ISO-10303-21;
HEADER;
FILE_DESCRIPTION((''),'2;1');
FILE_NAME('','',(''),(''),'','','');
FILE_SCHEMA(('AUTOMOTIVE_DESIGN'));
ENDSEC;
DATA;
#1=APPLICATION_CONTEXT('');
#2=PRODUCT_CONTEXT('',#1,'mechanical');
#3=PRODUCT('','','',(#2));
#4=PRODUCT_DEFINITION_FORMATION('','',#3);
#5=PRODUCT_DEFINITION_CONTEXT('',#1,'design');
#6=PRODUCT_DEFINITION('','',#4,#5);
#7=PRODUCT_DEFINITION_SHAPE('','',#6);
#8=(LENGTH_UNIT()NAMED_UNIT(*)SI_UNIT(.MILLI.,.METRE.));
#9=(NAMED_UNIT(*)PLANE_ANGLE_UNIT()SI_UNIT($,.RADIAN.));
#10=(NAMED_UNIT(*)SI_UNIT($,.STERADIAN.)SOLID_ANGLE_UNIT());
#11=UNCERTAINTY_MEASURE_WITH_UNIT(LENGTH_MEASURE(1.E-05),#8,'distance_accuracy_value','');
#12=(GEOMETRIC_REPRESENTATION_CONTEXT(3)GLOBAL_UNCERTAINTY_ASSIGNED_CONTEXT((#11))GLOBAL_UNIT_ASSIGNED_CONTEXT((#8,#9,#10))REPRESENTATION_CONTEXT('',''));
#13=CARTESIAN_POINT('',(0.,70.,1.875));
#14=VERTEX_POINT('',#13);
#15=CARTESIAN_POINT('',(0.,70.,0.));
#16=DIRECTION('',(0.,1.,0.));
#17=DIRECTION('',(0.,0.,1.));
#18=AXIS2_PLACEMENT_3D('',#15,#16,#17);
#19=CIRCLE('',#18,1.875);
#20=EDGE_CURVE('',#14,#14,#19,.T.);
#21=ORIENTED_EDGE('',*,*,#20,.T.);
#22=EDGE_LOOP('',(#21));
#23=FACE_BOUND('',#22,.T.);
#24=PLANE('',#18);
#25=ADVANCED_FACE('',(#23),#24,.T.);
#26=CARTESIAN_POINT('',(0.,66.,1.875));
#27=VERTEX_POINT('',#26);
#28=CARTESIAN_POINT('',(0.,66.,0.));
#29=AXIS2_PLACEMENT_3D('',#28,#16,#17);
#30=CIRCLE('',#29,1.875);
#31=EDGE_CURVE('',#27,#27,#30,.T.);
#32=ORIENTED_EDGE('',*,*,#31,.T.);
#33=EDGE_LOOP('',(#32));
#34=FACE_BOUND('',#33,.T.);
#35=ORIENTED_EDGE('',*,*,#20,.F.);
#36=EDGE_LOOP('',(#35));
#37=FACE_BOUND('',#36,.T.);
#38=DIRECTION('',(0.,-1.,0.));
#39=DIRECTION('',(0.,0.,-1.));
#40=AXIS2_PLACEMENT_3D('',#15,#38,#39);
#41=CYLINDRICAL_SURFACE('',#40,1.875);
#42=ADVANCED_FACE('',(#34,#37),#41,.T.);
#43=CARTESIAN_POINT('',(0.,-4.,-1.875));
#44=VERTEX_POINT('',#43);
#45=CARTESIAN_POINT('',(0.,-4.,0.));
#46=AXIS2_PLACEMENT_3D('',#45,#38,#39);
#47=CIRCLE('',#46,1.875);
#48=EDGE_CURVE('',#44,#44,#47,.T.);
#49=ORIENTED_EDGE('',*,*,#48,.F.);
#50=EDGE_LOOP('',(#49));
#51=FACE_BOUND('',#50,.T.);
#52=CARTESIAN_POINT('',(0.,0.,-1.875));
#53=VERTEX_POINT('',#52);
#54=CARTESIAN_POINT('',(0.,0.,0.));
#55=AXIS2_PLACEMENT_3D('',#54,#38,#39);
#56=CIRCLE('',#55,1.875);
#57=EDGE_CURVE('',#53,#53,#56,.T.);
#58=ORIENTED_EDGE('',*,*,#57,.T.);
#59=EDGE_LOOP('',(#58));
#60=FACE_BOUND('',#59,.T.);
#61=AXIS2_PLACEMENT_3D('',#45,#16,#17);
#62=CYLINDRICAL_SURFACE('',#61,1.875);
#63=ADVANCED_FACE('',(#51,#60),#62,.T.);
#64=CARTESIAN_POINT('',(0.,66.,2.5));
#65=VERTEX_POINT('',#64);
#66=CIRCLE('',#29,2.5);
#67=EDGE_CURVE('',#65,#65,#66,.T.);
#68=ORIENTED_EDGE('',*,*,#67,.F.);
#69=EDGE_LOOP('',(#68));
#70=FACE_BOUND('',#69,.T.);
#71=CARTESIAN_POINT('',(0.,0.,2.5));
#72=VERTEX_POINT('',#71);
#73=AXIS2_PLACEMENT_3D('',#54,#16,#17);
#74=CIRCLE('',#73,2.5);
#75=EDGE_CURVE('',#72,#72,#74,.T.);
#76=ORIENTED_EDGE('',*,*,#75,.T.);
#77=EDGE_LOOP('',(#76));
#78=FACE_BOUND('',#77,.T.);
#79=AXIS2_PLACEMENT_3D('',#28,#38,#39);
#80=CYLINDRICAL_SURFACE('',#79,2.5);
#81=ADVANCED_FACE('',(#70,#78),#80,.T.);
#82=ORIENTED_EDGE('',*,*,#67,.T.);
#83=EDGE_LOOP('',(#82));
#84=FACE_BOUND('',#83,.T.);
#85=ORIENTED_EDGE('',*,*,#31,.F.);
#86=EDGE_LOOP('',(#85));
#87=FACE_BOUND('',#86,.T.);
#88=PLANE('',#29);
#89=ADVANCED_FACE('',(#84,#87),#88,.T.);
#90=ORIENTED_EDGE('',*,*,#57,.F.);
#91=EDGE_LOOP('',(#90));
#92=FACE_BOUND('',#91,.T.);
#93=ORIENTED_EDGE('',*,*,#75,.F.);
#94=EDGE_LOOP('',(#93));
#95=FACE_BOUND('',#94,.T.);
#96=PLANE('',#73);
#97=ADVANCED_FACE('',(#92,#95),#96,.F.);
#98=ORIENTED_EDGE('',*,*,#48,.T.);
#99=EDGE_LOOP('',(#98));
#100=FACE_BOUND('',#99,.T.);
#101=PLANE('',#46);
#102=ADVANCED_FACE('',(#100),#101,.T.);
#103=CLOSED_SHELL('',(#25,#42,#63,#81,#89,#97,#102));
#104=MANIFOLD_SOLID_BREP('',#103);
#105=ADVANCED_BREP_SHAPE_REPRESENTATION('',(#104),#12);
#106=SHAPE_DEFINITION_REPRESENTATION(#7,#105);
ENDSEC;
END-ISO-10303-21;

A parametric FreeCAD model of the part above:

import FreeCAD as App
import Part
import Sketcher
from FreeCAD import Vector
Q = App.Units.Quantity

doc = App.newDocument("Part")
params = doc.addObject("Spreadsheet::Sheet", "Params")
for row, (alias, value) in enumerate([
    ("sketch1_diameter", "5 mm"),
    ("pad1_length", "66 mm"),
    ("sketch2_diameter", "3.75 mm"),
    ("pad2_length", "4 mm"),
    ("sketch3_diameter", "3.75 mm"),
    ("pad3_length", "4 mm"),
], start=1):
    params.set(f"A{row}", alias)
    params.set(f"B{row}", "=" + value)
    params.setAlias(f"B{row}", alias)

body = doc.addObject("PartDesign::Body", "Body")

# Sketch on XZ plane
sketch1 = body.newObject("Sketcher::SketchObject", "Sketch")
sketch1.AttachmentSupport = (doc.getObject("XZ_Plane"), [""])
sketch1.MapMode = "FlatFace"
sketch1.addGeometry(Part.Circle(Vector(0, 0, 0), Vector(0, 0, 1), 2.5), False)
sketch1.addConstraint(Sketcher.Constraint("Coincident", 0, 3, -1, 1))
sketch1.addConstraint(Sketcher.Constraint("Diameter", 0, Q("5 mm")))
sketch1.setExpression("Constraints[1]", "Params.sketch1_diameter")
pad1 = body.newObject("PartDesign::Pad", "Pad")
pad1.Profile = sketch1
pad1.setExpression("Length", "Params.pad1_length")
pad1.Reversed = True

# Sketch on XZ plane
sketch2 = body.newObject("Sketcher::SketchObject", "Sketch001")
sketch2.AttachmentSupport = (doc.getObject("XZ_Plane"), [""])
sketch2.MapMode = "FlatFace"
sketch2.AttachmentOffset = App.Placement(Vector(0, 0, -66), App.Rotation())
sketch2.addGeometry(Part.Circle(Vector(0, 0, 0), Vector(0, 0, 1), 1.875), False)
sketch2.addConstraint(Sketcher.Constraint("Coincident", 0, 3, -1, 1))
sketch2.addConstraint(Sketcher.Constraint("Diameter", 0, Q("3.75 mm")))
sketch2.setExpression("Constraints[1]", "Params.sketch2_diameter")
pad2 = body.newObject("PartDesign::Pad", "Pad001")
pad2.Profile = sketch2
pad2.setExpression("Length", "Params.pad2_length")
pad2.Reversed = True

# Sketch on XZ plane
sketch3 = body.newObject("Sketcher::SketchObject", "Sketch002")
sketch3.AttachmentSupport = (doc.getObject("XZ_Plane"), [""])
sketch3.MapMode = "FlatFace"
sketch3.addGeometry(Part.Circle(Vector(0, 0, 0), Vector(0, 0, 1), 1.875), False)
sketch3.addConstraint(Sketcher.Constraint("Coincident", 0, 3, -1, 1))
sketch3.addConstraint(Sketcher.Constraint("Diameter", 0, Q("3.75 mm")))
sketch3.setExpression("Constraints[1]", "Params.sketch3_diameter")
pad3 = body.newObject("PartDesign::Pad", "Pad002")
pad3.Profile = sketch3
pad3.setExpression("Length", "Params.pad3_length")

doc.recompute()
